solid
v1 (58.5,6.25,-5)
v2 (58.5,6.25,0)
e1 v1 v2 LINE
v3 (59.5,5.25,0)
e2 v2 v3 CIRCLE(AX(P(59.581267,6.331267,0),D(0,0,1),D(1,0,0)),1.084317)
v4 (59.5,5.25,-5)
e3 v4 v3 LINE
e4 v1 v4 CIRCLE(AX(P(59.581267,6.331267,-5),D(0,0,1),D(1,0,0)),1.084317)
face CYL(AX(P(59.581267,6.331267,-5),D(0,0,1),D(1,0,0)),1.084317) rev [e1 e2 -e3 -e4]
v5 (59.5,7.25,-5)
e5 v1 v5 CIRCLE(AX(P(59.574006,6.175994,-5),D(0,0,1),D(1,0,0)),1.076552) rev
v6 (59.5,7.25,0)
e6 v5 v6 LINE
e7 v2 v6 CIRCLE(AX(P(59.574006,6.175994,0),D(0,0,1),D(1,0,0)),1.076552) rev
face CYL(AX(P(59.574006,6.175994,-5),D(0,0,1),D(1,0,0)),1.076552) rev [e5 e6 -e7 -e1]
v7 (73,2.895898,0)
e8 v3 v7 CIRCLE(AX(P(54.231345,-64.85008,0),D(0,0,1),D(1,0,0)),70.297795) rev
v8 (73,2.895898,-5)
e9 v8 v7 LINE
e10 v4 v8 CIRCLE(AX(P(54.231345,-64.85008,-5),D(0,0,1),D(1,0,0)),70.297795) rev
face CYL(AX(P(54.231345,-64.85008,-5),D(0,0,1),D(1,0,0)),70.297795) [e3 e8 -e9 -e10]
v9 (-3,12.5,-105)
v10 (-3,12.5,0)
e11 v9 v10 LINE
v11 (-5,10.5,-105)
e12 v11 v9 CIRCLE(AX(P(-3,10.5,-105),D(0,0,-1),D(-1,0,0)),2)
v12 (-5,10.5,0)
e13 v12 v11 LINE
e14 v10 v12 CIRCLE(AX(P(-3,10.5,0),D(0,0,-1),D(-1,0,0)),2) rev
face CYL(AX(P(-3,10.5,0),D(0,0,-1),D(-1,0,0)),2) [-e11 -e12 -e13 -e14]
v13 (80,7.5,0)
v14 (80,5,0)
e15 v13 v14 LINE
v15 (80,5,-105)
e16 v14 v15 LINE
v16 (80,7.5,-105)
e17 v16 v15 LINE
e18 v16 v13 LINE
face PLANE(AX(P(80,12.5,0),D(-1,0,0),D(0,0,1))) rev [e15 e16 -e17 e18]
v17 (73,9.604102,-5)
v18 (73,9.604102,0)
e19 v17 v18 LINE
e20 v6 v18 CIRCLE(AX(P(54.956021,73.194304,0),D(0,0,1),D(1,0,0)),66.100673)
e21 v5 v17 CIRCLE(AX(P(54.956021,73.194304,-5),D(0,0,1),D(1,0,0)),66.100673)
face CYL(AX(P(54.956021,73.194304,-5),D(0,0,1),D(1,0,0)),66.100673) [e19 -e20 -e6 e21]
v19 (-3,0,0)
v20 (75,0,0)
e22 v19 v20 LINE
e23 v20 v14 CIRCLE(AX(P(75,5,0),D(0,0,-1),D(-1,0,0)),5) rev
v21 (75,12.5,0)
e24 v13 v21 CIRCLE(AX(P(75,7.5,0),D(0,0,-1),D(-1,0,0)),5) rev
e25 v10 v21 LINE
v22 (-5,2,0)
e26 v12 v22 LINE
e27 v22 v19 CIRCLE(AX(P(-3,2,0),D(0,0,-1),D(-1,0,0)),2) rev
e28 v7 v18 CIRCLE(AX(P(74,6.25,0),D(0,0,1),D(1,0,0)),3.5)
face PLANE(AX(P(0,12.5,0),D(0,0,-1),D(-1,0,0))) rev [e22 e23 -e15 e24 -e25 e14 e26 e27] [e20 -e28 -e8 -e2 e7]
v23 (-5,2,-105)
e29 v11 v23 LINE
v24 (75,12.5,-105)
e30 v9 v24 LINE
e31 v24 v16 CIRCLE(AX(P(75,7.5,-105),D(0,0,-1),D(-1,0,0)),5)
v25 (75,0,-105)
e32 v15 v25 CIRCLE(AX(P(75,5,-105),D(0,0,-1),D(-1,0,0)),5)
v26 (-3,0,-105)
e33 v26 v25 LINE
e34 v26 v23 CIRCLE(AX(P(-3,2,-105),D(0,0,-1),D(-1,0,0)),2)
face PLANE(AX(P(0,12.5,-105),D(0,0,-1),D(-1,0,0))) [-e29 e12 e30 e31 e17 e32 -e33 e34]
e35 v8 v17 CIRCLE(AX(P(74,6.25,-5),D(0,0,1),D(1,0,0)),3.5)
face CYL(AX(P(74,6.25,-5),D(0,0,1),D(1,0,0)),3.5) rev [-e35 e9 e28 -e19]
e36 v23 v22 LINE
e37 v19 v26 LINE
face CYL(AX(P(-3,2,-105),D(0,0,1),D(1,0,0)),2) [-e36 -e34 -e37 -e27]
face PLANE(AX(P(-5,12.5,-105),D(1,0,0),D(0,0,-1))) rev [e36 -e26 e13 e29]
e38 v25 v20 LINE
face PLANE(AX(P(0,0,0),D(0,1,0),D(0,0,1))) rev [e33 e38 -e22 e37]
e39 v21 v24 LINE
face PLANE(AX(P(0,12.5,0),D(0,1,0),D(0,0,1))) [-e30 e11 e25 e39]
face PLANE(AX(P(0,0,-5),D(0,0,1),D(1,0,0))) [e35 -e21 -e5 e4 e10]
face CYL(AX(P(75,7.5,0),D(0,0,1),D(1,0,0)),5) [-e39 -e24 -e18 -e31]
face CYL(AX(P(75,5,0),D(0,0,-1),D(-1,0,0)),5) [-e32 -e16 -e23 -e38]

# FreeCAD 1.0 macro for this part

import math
import FreeCAD as App
import Part
import Sketcher
Q = App.Units.Quantity


def edges_at(feature, points):
    """Names of the edges that pass closest to the given points."""
    edges = feature.Shape.Edges
    near = lambda p: min(range(len(edges)), key=lambda i: edges[i].distToShape(Part.Vertex(*p))[0])
    return sorted({f"Edge{near(p) + 1}" for p in points})


def add_polygon(sketch, points):
    """Adds a closed chain of lines whose ends are joined by coincident constraints."""
    first, n = sketch.GeometryCount, len(points)
    for a, b in zip(points, points[1:] + points[:1]):
        sketch.addGeometry(Part.LineSegment(App.Vector(*a, 0), App.Vector(*b, 0)), False)
    for i in range(n):
        sketch.addConstraint(Sketcher.Constraint("Coincident", first + i, 2, first + (i + 1) % n, 1))

doc = App.newDocument("Part")
body = doc.addObject("PartDesign::Body", "Body")

sketch1 = body.newObject("Sketcher::SketchObject", "Sketch")
sketch1.AttachmentSupport = (doc.getObject("XZ_Plane"), [""])
sketch1.MapMode = "FlatFace"
add_polygon(sketch1, [(80, 0), (80, -105), (-5, -105), (-5, 0)])
sketch1.addConstraint([
    Sketcher.Constraint("Vertical", 0),
    Sketcher.Constraint("Horizontal", 1),
    Sketcher.Constraint("Vertical", 2),
    Sketcher.Constraint("Horizontal", 3),
    Sketcher.Constraint("PointOnObject", 2, 2, -1),
    Sketcher.Constraint("DistanceX", 1, 2, 1, 1, Q("85 mm")),
    Sketcher.Constraint("DistanceY", 0, 2, 0, 1, Q("105 mm")),
    Sketcher.Constraint("DistanceX", -1, 1, 0, 2, Q("80 mm")),
])
pad1 = body.newObject("PartDesign::Pad", "Pad")
pad1.Profile = sketch1
pad1.Length = 12.5
pad1.Reversed = True

sketch2 = body.newObject("Sketcher::SketchObject", "Sketch001")
sketch2.AttachmentSupport = (doc.getObject("XY_Plane"), [""])
sketch2.MapMode = "FlatFace"
sketch2.addGeometry([
    Part.ArcOfCircle(Part.Circle(App.Vector(74, 6.2, 0), App.Vector(0, 0, 1), 3.5), math.radians(-107), math.radians(0)),
    Part.ArcOfCircle(Part.Circle(App.Vector(74, 6.2, 0), App.Vector(0, 0, 1), 3.5), math.radians(0), math.radians(107)),
    Part.ArcOfCircle(Part.Circle(App.Vector(55, 73.2, 0), App.Vector(0, 0, 1), 66.1), math.radians(-86.06), math.radians(-74.16)),
    Part.ArcOfCircle(Part.Circle(App.Vector(59.6, 6.2, 0), App.Vector(0, 0, 1), 1.1), math.radians(94), math.radians(176)),
    Part.ArcOfCircle(Part.Circle(App.Vector(59.6, 6.3, 0), App.Vector(0, 0, 1), 1.1), math.radians(-176), math.radians(-94)),
    Part.ArcOfCircle(Part.Circle(App.Vector(54.2, -64.9, 0), App.Vector(0, 0, 1), 70.3), math.radians(74.51), math.radians(85.7)),
], False)
sketch2.addConstraint([
    Sketcher.Constraint("Tangent", 0, 2, 1, 1),
    Sketcher.Constraint("Coincident", 1, 2, 2, 2),
    Sketcher.Constraint("Tangent", 2, 1, 3, 1),
    Sketcher.Constraint("Coincident", 3, 2, 4, 1),
    Sketcher.Constraint("Tangent", 4, 2, 5, 2),
    Sketcher.Constraint("Coincident", 5, 1, 0, 1),
    Sketcher.Constraint("Equal", 0, 1),
    Sketcher.Constraint("Horizontal", 1, 3, 0, 2),
    Sketcher.Constraint("Horizontal", 0, 2, 3, 2),
    Sketcher.Constraint("Vertical", 2, 1, 4, 2),
    Sketcher.Constraint("Vertical", 1, 2, 5, 1),
    Sketcher.Constraint("Radius", 0, Q("3.5 mm")),
    Sketcher.Constraint("DistanceX", -1, 1, 0, 3, Q("74 mm")),
    Sketcher.Constraint("DistanceX", -1, 1, 1, 2, Q("73 mm")),
    Sketcher.Constraint("DistanceY", 0, 3, 2, 1, Q("1 mm")),
    Sketcher.Constraint("DistanceX", 3, 2, 2, 1, Q("1 mm")),
    Sketcher.Constraint("DistanceY", 4, 2, 3, 2, Q("1 mm")),
    Sketcher.Constraint("DistanceX", -1, 1, 2, 1, Q("59.5 mm")),
    Sketcher.Constraint("DistanceY", -1, 1, 0, 3, Q("6.25 mm")),
    Sketcher.Constraint("Radius", 2, Q("66.100673 mm")),
    Sketcher.Constraint("Radius", 5, Q("70.297795 mm")),
])
pocket1 = body.newObject("PartDesign::Pocket", "Pocket")
pocket1.Profile = sketch2
pocket1.Length = 5
doc.recompute()

fillet = body.newObject("PartDesign::Fillet", "Fillet")
fillet.Base = (pocket1, edges_at(pocket1, [(80, 0, -52.5)]))
fillet.Radius = 5
doc.recompute()

fillet2 = body.newObject("PartDesign::Fillet", "Fillet001")
fillet2.Base = (fillet, edges_at(fillet, [(80, 12.5, -52.5)]))
fillet2.Radius = 5
doc.recompute()

fillet3 = body.newObject("PartDesign::Fillet", "Fillet002")
fillet3.Base = (fillet2, edges_at(fillet2, [(-5, 12.5, -52.5), (-5, 0, -52.5)]))
fillet3.Radius = 2

doc.recompute()
